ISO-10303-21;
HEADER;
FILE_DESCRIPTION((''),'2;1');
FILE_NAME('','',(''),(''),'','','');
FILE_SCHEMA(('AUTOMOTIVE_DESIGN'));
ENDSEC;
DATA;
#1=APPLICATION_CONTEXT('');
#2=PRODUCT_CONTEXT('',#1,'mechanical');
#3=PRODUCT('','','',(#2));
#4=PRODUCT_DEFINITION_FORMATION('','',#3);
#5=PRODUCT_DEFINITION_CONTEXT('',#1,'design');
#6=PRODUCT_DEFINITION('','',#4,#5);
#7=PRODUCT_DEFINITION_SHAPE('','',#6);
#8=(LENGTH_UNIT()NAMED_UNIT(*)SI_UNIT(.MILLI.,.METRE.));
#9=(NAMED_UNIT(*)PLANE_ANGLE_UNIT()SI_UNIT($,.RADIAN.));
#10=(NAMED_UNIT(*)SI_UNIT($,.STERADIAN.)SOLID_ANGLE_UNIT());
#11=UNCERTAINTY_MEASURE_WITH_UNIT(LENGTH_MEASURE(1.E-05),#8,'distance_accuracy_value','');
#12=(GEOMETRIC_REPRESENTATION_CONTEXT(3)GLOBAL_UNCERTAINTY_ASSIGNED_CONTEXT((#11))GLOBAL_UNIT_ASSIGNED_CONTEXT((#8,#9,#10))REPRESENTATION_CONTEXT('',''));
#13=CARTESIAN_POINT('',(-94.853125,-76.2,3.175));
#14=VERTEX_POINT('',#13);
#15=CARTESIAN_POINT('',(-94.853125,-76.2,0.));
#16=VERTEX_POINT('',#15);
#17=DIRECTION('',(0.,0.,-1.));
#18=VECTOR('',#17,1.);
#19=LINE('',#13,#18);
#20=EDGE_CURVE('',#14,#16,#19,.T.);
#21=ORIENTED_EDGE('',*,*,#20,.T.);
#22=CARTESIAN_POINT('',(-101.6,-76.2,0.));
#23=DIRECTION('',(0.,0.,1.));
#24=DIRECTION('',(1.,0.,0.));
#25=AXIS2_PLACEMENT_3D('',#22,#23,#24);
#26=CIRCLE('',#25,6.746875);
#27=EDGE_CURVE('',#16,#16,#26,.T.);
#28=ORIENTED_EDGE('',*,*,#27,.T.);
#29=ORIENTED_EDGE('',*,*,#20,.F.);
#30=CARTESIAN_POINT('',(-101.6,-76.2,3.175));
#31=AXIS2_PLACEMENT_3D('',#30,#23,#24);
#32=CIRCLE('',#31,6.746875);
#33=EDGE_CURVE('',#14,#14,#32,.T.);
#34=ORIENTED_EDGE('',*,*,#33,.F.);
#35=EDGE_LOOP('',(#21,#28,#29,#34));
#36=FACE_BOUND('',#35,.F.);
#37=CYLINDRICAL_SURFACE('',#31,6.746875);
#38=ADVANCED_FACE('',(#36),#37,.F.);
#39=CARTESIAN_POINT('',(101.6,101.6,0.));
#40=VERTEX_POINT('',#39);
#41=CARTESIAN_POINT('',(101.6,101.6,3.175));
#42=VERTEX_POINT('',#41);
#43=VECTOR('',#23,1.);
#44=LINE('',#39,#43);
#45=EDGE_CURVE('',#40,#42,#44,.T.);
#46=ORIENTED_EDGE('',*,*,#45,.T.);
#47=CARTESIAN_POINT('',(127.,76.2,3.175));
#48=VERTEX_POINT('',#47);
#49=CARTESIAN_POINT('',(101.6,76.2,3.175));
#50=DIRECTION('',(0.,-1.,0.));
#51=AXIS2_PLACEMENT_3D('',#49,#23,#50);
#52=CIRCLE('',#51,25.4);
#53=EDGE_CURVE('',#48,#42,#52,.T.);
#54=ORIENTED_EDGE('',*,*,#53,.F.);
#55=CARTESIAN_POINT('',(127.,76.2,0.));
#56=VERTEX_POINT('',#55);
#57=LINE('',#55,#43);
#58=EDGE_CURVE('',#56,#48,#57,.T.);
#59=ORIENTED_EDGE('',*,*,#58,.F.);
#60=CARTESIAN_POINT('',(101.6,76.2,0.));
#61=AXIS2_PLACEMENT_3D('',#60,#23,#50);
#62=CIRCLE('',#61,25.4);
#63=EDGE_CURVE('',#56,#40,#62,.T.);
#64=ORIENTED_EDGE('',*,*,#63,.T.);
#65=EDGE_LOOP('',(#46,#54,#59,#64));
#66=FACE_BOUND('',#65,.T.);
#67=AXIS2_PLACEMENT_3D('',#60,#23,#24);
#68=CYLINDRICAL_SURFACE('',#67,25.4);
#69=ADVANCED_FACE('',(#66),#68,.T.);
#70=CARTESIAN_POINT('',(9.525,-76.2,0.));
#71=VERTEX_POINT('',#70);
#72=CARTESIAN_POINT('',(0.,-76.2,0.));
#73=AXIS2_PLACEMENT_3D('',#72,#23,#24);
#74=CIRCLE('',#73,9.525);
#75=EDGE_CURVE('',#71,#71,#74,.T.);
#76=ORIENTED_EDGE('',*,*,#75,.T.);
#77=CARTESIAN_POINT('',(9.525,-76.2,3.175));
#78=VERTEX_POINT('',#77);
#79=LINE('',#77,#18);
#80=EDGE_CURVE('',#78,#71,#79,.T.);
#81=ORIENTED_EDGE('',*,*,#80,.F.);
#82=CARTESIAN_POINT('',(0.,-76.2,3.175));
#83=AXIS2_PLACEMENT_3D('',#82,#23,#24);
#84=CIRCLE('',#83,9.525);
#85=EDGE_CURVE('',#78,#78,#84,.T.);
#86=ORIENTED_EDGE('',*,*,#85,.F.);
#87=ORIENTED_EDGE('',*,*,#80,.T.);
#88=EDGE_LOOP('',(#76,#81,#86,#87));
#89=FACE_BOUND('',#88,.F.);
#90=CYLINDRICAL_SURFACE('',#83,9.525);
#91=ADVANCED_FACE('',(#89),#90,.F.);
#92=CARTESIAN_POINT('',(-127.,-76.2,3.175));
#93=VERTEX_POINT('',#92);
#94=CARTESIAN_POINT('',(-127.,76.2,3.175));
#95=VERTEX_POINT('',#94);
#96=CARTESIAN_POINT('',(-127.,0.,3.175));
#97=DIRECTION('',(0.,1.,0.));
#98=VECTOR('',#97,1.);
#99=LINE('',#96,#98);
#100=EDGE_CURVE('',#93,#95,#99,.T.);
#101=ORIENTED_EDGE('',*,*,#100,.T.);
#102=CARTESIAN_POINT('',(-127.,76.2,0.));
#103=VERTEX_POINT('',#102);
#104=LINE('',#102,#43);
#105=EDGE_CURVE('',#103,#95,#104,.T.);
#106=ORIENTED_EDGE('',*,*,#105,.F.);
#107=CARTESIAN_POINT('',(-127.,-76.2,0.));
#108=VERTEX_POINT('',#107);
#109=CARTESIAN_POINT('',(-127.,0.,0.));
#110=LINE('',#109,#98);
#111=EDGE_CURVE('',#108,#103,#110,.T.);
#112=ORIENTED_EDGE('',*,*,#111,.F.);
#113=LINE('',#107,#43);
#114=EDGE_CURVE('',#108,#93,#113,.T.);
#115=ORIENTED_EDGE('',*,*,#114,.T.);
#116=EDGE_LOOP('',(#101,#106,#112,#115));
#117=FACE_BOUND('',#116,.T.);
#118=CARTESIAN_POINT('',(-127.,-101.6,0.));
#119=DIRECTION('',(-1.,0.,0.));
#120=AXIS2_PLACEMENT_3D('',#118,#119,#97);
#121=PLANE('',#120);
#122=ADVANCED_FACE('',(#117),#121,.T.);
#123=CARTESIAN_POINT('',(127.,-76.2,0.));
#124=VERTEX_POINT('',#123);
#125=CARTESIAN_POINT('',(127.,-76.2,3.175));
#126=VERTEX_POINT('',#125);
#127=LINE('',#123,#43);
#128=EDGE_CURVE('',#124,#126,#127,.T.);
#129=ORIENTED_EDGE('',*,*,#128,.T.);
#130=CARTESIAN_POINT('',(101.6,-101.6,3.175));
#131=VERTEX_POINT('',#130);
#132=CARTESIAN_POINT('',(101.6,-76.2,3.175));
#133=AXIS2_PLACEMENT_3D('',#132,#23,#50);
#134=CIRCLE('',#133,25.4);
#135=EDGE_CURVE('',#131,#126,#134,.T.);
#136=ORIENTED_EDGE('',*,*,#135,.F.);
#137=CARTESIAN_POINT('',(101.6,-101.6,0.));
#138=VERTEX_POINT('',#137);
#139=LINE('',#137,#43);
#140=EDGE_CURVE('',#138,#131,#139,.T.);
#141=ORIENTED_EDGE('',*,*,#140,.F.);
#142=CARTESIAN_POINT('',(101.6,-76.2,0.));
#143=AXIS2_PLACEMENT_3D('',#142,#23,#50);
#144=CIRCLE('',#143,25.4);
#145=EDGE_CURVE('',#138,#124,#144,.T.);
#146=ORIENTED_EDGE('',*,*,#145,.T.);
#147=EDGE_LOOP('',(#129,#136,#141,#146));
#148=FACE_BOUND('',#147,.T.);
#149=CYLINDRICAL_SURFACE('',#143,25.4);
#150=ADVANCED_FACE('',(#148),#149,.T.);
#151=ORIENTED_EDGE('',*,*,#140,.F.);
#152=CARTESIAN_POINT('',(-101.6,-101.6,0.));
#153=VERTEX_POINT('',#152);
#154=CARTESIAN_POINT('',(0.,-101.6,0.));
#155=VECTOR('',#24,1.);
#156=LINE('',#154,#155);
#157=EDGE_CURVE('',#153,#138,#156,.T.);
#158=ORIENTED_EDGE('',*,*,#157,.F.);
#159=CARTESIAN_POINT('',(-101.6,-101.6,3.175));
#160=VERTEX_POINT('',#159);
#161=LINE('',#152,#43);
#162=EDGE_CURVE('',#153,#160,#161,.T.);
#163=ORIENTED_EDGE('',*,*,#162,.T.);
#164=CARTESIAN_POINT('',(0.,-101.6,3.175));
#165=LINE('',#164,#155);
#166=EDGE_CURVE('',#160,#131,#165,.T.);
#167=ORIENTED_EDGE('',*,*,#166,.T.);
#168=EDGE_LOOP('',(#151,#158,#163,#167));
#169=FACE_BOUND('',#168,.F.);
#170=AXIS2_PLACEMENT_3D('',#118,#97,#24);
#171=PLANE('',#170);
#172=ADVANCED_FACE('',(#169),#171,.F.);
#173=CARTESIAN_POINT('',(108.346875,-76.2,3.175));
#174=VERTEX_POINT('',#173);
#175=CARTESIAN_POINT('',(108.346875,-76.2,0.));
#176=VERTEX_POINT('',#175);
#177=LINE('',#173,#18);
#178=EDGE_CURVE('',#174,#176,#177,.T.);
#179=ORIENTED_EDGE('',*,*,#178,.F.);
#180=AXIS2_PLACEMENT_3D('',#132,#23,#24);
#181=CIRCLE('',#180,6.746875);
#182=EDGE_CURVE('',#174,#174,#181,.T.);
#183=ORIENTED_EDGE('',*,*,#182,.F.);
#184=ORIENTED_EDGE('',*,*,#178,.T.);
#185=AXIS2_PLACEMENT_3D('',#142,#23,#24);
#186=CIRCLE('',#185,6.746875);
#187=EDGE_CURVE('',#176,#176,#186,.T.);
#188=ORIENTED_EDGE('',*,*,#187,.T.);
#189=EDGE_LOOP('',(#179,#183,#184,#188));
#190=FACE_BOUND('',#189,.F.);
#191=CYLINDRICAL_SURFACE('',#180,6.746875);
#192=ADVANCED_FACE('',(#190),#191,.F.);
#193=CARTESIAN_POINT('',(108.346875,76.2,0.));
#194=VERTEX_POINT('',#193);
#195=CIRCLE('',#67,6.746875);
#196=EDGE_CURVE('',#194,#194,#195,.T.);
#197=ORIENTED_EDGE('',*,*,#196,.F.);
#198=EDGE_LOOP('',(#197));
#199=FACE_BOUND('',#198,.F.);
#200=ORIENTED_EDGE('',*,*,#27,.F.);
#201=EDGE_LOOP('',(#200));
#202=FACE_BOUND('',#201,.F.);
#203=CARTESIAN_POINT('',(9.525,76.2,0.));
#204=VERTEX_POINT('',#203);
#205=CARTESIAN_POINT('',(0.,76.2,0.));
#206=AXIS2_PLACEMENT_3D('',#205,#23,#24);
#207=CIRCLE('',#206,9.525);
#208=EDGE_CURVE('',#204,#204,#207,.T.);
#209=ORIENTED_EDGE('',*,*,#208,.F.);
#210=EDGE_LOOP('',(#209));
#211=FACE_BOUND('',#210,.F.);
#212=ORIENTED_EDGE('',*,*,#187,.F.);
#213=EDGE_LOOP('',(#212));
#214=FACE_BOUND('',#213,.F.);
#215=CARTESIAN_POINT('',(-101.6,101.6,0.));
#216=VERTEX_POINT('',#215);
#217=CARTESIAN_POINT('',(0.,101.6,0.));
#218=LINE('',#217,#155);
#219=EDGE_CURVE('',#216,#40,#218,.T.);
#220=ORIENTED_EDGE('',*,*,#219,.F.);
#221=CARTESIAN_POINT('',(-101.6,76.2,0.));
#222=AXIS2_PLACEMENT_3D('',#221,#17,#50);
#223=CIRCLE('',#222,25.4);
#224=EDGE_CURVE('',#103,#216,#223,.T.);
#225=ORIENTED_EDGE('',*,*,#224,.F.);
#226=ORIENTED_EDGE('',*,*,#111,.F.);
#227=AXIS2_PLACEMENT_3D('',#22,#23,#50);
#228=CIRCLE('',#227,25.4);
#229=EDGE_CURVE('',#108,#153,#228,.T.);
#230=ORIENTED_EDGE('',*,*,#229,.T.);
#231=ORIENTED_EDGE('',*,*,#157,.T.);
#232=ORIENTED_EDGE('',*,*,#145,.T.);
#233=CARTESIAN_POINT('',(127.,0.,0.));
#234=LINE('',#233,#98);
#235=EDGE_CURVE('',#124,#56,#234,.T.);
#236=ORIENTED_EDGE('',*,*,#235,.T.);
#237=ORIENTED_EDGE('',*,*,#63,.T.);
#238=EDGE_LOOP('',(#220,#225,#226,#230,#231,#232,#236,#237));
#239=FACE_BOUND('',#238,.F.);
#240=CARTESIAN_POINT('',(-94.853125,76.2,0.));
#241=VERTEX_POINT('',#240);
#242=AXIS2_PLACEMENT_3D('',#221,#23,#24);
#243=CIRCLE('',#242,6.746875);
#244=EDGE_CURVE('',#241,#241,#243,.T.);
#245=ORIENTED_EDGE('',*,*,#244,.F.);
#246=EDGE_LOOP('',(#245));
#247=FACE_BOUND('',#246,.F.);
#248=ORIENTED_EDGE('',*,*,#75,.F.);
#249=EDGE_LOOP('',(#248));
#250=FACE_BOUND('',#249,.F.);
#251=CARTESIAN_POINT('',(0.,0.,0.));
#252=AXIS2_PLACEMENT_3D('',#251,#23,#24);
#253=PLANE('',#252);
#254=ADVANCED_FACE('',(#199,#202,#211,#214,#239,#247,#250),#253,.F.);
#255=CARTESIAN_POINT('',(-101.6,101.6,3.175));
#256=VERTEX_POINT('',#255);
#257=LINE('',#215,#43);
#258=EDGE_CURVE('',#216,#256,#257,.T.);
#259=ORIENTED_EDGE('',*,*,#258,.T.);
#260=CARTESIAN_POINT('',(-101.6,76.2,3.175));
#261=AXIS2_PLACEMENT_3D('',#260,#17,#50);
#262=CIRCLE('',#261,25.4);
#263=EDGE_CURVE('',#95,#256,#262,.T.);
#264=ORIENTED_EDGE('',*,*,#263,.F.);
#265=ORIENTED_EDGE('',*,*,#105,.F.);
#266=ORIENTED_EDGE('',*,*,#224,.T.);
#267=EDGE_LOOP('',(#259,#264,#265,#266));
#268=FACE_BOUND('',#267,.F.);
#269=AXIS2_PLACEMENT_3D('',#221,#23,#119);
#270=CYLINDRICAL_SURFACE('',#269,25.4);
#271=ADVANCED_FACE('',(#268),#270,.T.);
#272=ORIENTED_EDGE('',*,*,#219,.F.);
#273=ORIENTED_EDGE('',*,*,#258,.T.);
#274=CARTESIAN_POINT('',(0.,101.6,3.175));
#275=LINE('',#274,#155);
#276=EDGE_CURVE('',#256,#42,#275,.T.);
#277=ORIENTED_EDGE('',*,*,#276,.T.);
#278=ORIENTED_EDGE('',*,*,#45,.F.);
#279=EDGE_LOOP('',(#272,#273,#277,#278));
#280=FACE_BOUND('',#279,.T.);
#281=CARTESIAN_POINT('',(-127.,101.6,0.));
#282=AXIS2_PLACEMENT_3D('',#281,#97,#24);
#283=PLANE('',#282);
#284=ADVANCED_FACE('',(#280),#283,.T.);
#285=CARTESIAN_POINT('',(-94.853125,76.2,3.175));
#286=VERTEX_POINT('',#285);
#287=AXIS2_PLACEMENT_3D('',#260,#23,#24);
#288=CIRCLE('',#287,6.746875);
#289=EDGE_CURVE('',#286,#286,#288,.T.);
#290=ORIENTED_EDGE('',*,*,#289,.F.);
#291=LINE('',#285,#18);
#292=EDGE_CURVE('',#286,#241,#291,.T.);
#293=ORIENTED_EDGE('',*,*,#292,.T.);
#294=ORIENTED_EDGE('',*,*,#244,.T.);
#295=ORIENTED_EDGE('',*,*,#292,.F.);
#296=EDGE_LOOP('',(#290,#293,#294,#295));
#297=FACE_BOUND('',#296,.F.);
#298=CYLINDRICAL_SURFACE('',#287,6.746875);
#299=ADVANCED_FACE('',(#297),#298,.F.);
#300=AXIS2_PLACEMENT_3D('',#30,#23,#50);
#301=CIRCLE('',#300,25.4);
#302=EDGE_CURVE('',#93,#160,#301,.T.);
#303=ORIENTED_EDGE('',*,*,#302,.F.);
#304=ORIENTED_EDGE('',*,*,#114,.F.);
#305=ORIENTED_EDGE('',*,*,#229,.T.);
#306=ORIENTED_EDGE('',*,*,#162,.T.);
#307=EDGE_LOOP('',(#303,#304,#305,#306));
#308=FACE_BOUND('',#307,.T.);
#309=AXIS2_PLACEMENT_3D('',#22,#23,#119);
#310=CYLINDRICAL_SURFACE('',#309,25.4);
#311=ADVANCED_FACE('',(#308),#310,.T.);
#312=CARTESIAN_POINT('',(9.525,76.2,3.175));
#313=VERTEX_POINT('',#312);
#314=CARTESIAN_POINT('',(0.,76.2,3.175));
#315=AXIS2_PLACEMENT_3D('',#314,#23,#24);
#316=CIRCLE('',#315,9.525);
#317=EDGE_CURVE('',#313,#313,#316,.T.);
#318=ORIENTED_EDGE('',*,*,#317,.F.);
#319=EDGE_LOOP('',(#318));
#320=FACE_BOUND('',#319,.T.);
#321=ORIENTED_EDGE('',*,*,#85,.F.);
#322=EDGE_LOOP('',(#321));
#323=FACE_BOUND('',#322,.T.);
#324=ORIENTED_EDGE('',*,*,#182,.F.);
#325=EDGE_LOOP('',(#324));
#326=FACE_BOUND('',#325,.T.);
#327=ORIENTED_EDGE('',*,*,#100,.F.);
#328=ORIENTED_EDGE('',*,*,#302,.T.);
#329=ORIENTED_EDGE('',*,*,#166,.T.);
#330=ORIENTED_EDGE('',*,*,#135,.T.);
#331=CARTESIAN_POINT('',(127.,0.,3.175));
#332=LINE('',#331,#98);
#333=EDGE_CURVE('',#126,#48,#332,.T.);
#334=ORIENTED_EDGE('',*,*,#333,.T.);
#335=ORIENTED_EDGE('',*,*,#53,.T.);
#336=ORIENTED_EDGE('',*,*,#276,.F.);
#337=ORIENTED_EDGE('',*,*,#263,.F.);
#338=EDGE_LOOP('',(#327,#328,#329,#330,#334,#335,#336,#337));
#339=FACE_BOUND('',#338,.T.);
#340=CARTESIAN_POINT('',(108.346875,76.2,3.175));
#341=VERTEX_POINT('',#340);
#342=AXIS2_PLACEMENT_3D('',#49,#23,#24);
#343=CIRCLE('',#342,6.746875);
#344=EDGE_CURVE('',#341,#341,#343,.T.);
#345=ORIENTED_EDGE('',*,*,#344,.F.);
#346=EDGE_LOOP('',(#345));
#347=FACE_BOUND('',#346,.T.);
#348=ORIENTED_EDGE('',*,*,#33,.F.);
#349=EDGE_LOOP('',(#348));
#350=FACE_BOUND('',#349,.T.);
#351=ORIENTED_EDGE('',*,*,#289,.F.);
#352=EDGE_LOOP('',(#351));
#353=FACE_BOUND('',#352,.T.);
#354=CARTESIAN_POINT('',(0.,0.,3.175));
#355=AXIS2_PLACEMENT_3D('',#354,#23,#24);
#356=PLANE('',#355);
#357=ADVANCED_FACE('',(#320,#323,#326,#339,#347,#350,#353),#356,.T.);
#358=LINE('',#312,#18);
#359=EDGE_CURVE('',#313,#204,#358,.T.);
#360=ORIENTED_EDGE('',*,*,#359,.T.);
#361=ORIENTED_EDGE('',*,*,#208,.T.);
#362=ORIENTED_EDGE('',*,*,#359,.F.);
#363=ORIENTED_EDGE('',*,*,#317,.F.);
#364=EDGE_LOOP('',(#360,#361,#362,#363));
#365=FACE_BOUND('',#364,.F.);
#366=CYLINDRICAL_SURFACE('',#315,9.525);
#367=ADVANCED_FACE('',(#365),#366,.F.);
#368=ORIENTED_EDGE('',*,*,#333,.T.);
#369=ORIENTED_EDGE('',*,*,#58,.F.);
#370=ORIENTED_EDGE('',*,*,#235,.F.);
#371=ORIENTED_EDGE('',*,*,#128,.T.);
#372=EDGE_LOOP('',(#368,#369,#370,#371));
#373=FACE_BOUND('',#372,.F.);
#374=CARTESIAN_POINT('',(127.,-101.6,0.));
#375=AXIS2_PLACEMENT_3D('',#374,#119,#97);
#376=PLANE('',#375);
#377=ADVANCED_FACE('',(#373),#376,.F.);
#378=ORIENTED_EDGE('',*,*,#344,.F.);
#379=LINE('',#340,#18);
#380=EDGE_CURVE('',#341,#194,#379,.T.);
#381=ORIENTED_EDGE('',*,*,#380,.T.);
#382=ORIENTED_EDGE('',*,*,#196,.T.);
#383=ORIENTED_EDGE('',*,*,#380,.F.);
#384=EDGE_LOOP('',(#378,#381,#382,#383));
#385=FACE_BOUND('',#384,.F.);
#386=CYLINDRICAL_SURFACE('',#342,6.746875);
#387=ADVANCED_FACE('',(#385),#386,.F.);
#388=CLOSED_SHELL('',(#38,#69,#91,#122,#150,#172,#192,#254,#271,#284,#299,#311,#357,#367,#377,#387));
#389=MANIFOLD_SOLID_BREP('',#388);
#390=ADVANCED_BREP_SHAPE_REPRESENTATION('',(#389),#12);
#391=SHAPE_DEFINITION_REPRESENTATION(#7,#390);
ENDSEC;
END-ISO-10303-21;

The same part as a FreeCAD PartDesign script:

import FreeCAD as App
import Part
import Sketcher

V = App.Vector
Q = App.Units.Quantity


def edges_at(feature, points):
    """Names of the edges that pass closest to the given points."""
    edges = feature.Shape.Edges
    near = lambda p: min(range(len(edges)), key=lambda i: edges[i].distToShape(Part.Vertex(*p))[0])
    return sorted({f"Edge{near(p) + 1}" for p in points})


def add_polygon(sketch, points):
    """Adds a closed chain of lines whose ends are joined by coincident constraints."""
    first, n = sketch.GeometryCount, len(points)
    for a, b in zip(points, points[1:] + points[:1]):
        sketch.addGeometry(Part.LineSegment(App.Vector(*a, 0), App.Vector(*b, 0)), False)
    for i in range(n):
        sketch.addConstraint(Sketcher.Constraint("Coincident", first + i, 2, first + (i + 1) % n, 1))

doc = App.newDocument("Part")
body = doc.addObject("PartDesign::Body", "Body")

# Sketch on XY plane
sketch1 = body.newObject("Sketcher::SketchObject", "Sketch")
sketch1.AttachmentSupport = (doc.getObject("XY_Plane"), [""])
sketch1.MapMode = "FlatFace"
add_polygon(sketch1, [(-127, 102), (-127, -102), (127, -102), (127, 102)])  # lines 0-3
sketch1.addConstraint(Sketcher.Constraint("Vertical", 0))
sketch1.addConstraint(Sketcher.Constraint("Horizontal", 1))
sketch1.addConstraint(Sketcher.Constraint("Vertical", 2))
sketch1.addConstraint(Sketcher.Constraint("Horizontal", 3))
sketch1.addConstraint(Sketcher.Constraint("Symmetric", 0, 2, 2, 2, -1, 1))
sketch1.addConstraint(Sketcher.Constraint("DistanceX", 1, 1, 1, 2, Q("10 in")))
sketch1.addConstraint(Sketcher.Constraint("DistanceY", 0, 2, 0, 1, Q("8 in")))
pad1 = body.newObject("PartDesign::Pad", "Pad")
pad1.Profile = sketch1
pad1.Length = Q("0.125 in")
doc.recompute()

fillet = body.newObject("PartDesign::Fillet", "Fillet")
fillet.Base = (pad1, edges_at(pad1, [
    (127, 101.6, 1.587),
    (-127, 101.6, 1.587),
    (127, -101.6, 1.587),
    (-127, -101.6, 1.587),
]))
fillet.Radius = Q("1 in")

# Sketch on XY plane
sketch2 = body.newObject("Sketcher::SketchObject", "Sketch001")
sketch2.AttachmentSupport = (doc.getObject("XY_Plane"), [""])
sketch2.MapMode = "FlatFace"
sketch2.AttachmentOffset = App.Placement(V(0, 0, 0.125 * 25.4), App.Rotation())
sketch2.addGeometry(Part.Circle(V(0, 76, 0), V(0, 0, 1), 10), False)
sketch2.addGeometry(Part.Circle(V(0, -76, 0), V(0, 0, 1), 10), False)
sketch2.addGeometry(Part.Circle(V(-102, 76, 0), V(0, 0, 1), 7), False)
sketch2.addGeometry(Part.Circle(V(-102, -76, 0), V(0, 0, 1), 7), False)
sketch2.addGeometry(Part.Circle(V(102, 76, 0), V(0, 0, 1), 7), False)
sketch2.addGeometry(Part.Circle(V(102, -76, 0), V(0, 0, 1), 7), False)
sketch2.addConstraint(Sketcher.Constraint("Equal", 0, 1))
sketch2.addConstraint(Sketcher.Constraint("Equal", 2, 3))
sketch2.addConstraint(Sketcher.Constraint("Equal", 3, 4))
sketch2.addConstraint(Sketcher.Constraint("Equal", 4, 5))
sketch2.addConstraint(Sketcher.Constraint("Symmetric", 0, 3, 1, 3, -1, 1))
sketch2.addConstraint(Sketcher.Constraint("Symmetric", 3, 3, 4, 3, -1, 1))
sketch2.addConstraint(Sketcher.Constraint("Symmetric", 2, 3, 5, 3, -1, 1))
sketch2.addConstraint(Sketcher.Constraint("Symmetric", 2, 3, 4, 3, -2))
sketch2.addConstraint(Sketcher.Constraint("PointOnObject", 0, 3, -2))
sketch2.addConstraint(Sketcher.Constraint("Horizontal", 0, 3, 2, 3))
sketch2.addConstraint(Sketcher.Constraint("Diameter", 0, Q("0.75 in")))
sketch2.addConstraint(Sketcher.Constraint("Diameter", 2, Q("0.53125 in")))
sketch2.addConstraint(Sketcher.Constraint("DistanceY", -1, 1, 0, 3, Q("3 in")))
sketch2.addConstraint(Sketcher.Constraint("DistanceX", 2, 3, -1, 1, Q("4 in")))
pocket1 = body.newObject("PartDesign::Pocket", "Pocket")
pocket1.Profile = sketch2
pocket1.Type = "ThroughAll"

doc.recompute()
